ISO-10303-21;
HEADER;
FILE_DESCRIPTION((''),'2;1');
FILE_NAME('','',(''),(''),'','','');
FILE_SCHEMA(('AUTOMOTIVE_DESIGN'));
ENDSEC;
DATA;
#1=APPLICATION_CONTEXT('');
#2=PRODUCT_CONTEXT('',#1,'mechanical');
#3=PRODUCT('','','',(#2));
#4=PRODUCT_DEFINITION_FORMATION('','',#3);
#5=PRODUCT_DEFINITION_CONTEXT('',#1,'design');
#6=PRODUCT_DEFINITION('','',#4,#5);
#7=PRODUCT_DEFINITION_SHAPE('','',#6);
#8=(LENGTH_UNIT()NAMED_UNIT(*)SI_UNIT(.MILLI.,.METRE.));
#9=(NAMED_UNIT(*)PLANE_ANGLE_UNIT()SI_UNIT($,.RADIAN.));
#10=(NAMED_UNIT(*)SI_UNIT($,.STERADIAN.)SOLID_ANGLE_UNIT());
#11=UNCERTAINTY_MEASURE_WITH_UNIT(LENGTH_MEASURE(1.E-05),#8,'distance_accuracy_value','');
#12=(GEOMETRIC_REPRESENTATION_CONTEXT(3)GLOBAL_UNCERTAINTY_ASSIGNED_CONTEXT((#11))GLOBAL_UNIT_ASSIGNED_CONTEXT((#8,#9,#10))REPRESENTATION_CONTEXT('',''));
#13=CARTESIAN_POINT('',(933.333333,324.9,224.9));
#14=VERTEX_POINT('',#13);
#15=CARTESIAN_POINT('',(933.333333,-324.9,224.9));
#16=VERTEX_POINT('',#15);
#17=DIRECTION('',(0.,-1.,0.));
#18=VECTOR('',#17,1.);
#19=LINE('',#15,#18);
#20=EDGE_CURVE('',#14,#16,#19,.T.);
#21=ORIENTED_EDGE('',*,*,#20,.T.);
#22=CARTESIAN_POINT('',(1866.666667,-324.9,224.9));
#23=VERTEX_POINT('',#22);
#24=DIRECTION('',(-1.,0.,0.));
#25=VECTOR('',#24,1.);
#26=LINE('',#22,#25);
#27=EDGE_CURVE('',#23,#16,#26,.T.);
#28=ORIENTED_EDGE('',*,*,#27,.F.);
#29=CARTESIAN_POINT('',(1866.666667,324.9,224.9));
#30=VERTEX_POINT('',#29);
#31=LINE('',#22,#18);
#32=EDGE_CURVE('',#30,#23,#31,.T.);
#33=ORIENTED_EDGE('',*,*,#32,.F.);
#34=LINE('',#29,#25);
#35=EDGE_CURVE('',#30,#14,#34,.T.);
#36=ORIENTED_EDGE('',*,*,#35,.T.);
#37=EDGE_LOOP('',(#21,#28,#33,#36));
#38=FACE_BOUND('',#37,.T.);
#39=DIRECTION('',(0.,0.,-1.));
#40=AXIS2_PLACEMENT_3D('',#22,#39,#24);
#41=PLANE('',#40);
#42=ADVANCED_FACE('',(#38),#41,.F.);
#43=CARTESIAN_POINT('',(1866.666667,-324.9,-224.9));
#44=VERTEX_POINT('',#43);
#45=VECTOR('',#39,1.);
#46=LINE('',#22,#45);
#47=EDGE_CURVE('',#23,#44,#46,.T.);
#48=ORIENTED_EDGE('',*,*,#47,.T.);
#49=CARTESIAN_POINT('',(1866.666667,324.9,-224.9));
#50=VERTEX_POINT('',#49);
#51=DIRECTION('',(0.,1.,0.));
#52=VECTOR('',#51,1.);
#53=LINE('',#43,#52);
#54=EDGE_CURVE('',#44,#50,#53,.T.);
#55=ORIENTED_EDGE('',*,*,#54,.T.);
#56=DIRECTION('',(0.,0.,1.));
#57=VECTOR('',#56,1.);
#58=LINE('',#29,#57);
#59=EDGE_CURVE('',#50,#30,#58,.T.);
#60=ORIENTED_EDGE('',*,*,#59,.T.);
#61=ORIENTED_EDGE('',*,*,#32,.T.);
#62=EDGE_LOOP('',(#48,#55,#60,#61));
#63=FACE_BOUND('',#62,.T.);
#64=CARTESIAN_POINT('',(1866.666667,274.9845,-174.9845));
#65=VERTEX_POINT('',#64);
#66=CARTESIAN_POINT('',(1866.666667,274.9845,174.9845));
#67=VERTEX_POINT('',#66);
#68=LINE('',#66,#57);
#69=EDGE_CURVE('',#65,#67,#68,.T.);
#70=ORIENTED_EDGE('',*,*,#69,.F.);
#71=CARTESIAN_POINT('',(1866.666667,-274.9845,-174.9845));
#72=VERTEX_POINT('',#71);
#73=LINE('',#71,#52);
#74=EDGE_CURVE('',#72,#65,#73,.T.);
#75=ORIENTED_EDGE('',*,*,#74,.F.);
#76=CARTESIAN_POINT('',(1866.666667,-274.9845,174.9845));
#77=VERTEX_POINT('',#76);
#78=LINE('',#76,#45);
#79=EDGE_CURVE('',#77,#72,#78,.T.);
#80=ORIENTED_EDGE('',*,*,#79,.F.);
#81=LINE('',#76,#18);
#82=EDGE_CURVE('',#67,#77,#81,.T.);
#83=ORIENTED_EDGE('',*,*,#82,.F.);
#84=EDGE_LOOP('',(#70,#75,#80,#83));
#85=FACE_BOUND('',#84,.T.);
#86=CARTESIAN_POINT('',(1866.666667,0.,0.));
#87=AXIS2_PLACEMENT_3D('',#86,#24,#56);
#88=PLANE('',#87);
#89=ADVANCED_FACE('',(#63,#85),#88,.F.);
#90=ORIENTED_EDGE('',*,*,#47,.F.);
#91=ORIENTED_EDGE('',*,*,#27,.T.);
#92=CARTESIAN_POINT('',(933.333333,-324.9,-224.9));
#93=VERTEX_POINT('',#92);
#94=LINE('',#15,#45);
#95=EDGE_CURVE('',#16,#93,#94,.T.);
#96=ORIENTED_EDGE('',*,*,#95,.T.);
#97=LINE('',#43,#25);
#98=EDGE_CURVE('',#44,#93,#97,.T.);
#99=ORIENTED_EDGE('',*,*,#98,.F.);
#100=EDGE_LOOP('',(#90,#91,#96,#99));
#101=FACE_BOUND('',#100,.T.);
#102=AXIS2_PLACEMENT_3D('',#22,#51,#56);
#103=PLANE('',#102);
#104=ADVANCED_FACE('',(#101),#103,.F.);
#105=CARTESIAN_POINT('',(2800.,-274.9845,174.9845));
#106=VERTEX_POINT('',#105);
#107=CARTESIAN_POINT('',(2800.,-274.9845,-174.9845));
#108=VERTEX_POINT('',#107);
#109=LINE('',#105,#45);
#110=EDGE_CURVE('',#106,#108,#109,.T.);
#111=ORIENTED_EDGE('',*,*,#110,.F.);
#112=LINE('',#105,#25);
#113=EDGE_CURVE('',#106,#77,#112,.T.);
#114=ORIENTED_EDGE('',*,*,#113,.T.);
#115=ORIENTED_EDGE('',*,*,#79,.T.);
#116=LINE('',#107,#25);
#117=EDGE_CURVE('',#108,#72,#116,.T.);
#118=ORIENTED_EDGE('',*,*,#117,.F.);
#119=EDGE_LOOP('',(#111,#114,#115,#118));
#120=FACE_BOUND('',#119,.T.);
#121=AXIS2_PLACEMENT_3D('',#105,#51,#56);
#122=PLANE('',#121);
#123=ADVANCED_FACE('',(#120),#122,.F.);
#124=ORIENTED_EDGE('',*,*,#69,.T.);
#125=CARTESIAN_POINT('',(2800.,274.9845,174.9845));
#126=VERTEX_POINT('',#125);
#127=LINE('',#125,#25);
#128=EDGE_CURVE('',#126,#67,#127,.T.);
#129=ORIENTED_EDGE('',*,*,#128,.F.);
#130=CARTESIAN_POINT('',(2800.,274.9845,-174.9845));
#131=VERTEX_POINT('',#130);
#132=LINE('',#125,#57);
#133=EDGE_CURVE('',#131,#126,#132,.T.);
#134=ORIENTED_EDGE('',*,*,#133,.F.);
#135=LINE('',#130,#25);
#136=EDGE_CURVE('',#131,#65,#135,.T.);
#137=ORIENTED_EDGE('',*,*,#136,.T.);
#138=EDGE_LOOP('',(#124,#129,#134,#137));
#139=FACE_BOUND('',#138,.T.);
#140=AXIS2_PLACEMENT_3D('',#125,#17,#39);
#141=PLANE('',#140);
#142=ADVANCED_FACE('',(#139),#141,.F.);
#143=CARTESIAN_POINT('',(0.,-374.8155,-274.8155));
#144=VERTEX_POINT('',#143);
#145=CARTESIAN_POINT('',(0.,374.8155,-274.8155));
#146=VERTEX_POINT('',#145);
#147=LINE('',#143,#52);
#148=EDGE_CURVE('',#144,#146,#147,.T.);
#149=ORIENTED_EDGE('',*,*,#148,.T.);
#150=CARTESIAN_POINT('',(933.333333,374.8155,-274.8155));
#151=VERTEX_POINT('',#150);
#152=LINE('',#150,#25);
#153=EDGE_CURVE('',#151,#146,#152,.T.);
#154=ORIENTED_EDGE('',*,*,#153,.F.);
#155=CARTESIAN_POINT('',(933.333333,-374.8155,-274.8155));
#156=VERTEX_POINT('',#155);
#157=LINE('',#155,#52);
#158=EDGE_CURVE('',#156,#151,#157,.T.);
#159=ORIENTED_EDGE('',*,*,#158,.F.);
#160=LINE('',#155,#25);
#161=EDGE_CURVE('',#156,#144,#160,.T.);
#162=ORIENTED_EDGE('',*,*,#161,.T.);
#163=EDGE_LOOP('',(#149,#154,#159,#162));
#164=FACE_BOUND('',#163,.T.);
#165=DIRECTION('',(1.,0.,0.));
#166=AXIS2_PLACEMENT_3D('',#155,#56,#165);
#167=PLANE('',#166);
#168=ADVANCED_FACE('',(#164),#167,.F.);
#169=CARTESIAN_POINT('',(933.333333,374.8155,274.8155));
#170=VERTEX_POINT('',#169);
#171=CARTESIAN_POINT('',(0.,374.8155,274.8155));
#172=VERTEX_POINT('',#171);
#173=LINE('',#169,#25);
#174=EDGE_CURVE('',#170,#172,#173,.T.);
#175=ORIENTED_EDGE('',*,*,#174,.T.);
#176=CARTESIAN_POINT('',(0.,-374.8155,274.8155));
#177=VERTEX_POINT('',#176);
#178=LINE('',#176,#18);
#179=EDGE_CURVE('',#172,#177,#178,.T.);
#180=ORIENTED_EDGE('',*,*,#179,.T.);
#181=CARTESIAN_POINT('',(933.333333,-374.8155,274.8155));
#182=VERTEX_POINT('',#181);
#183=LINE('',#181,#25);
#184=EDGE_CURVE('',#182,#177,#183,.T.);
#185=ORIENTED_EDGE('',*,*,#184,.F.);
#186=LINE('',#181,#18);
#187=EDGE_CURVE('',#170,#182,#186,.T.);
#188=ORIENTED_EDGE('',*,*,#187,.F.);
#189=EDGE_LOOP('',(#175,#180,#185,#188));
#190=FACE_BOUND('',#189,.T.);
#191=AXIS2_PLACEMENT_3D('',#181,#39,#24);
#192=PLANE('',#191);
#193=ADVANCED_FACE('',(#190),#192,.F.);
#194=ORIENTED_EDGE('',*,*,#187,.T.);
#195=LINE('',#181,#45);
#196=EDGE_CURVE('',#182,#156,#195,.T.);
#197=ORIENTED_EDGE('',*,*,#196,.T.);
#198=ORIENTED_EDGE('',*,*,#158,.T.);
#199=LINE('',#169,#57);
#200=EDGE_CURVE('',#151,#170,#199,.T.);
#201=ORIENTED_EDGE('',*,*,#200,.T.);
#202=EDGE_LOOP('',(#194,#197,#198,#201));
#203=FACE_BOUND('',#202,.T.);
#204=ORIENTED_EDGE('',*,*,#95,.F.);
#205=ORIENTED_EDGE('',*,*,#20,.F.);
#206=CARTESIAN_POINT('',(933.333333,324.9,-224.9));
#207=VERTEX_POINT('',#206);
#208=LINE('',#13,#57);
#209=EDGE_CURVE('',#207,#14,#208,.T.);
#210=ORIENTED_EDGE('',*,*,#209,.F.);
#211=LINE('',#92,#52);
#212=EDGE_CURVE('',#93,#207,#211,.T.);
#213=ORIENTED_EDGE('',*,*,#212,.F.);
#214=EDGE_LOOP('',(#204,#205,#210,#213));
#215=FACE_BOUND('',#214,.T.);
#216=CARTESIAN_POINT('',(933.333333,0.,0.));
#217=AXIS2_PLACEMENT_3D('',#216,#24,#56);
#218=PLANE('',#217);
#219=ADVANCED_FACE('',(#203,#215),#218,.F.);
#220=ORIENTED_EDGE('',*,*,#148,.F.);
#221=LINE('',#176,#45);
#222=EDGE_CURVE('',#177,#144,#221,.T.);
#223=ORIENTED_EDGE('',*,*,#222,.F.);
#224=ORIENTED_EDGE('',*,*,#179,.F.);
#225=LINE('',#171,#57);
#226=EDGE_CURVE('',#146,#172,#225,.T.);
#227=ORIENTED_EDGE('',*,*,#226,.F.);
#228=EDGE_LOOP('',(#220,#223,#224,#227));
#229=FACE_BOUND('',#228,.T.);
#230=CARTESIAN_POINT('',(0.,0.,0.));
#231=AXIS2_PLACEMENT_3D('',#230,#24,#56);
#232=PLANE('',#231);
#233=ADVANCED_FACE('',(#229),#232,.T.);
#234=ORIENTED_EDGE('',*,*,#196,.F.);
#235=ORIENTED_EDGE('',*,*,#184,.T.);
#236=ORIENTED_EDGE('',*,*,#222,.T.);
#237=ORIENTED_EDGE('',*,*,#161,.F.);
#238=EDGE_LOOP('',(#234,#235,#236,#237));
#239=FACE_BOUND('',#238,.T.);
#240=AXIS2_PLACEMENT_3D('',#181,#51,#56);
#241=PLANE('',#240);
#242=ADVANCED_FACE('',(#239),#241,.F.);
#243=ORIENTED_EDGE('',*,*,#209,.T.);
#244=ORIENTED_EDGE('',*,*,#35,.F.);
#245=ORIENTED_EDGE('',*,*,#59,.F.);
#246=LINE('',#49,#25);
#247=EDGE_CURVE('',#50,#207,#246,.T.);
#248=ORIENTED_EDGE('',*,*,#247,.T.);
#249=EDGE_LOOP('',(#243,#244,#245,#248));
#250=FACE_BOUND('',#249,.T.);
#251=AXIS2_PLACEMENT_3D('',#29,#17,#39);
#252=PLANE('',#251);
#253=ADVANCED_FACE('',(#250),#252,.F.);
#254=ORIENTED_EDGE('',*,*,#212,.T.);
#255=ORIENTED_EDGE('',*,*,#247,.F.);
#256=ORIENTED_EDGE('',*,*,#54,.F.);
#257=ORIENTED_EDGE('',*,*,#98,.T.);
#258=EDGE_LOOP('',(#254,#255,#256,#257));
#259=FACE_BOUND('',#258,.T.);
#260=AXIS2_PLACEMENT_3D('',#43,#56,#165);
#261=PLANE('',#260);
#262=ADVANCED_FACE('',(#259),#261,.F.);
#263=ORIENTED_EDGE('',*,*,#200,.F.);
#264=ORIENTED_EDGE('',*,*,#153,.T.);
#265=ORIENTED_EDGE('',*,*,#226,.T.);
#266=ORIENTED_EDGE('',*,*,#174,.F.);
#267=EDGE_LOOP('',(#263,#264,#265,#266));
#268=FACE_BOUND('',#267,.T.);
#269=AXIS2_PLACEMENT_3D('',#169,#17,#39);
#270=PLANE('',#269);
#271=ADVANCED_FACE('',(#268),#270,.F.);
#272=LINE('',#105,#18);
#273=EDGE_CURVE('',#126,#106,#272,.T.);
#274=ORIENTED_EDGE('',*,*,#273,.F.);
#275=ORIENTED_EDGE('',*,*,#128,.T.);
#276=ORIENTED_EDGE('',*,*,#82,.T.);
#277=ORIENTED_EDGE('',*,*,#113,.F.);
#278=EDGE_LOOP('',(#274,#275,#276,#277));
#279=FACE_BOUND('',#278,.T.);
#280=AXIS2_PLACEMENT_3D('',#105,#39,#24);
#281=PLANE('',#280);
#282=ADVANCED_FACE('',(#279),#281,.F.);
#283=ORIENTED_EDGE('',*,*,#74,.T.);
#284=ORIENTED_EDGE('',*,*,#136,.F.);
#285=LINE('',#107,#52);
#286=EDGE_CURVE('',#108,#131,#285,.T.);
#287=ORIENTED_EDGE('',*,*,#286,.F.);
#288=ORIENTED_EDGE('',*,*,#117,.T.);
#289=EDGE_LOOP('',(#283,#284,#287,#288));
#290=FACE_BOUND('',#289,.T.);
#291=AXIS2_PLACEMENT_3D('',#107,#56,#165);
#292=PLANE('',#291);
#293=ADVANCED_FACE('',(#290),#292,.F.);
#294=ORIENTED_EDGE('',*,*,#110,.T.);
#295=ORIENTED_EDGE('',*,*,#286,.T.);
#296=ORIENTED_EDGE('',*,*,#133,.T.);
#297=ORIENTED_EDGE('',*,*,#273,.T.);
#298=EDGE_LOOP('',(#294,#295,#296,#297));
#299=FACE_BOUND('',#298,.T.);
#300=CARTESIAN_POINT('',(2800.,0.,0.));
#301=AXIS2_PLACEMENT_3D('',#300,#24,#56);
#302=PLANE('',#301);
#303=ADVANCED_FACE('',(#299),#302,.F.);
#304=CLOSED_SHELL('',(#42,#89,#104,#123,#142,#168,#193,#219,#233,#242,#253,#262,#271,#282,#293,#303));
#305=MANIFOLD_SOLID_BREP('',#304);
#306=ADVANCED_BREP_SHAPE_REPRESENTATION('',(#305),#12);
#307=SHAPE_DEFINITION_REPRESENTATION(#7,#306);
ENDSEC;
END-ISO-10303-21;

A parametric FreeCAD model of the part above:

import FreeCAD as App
import Part
import Sketcher
from FreeCAD import Vector


def add_polygon(sketch, points):
    """Adds a closed chain of lines whose ends are joined by coincident constraints."""
    first, n = sketch.GeometryCount, len(points)
    for a, b in zip(points, points[1:] + points[:1]):
        sketch.addGeometry(Part.LineSegment(App.Vector(*a, 0), App.Vector(*b, 0)), False)
    for i in range(n):
        sketch.addConstraint(Sketcher.Constraint("Coincident", first + i, 2, first + (i + 1) % n, 1))

doc = App.newDocument("Part")
params = doc.addObject("Spreadsheet::Sheet", "Params")
for row, (alias, value) in enumerate([
    ("pad1_length", "933.333333 mm"),
    ("sketch2_width", "649.8 mm"),
    ("sketch2_height", "449.8 mm"),
    ("pad2_length", "933.333333 mm"),
    ("pad3_length", "933.333333 mm"),
], start=1):
    params.set(f"A{row}", alias)
    params.set(f"B{row}", "=" + value)
    params.setAlias(f"B{row}", alias)

body = doc.addObject("PartDesign::Body", "Body")

sketch1 = doc.addObject("Sketcher::SketchObject", "Sketch")
body.addObject(sketch1)
sketch1.AttachmentSupport = (doc.YZ_Plane, [""])
sketch1.MapMode = "FlatFace"
add_polygon(sketch1, [(374.8155, 274.8155), (-374.8155, 274.8155), (-374.8155, -274.8155), (374.8155, -274.8155)])
sketch1.addConstraint([
    Sketcher.Constraint("Horizontal", 0),
    Sketcher.Constraint("Vertical", 1),
    Sketcher.Constraint("Horizontal", 2),
    Sketcher.Constraint("Vertical", 3),
    Sketcher.Constraint("Symmetric", 0, 2, 2, 2, -1, 1),
    Sketcher.Constraint("DistanceX", 0, 2, 0, 1, 749.631),
    Sketcher.Constraint("DistanceY", 1, 2, 1, 1, 549.631),
])
pad1 = doc.addObject("PartDesign::Pad", "Pad")
body.addObject(pad1)
pad1.Profile = sketch1
pad1.setExpression("Length", "Params.pad1_length")

sketch2 = doc.addObject("Sketcher::SketchObject", "Sketch001")
body.addObject(sketch2)
sketch2.AttachmentSupport = (doc.YZ_Plane, [""])
sketch2.MapMode = "FlatFace"
sketch2.AttachmentOffset = App.Placement(Vector(0, 0, 933.333333), App.Rotation())
add_polygon(sketch2, [(324.9, 224.9), (-324.9, 224.9), (-324.9, -224.9), (324.9, -224.9)])
sketch2.addConstraint([
    Sketcher.Constraint("Horizontal", 0),
    Sketcher.Constraint("Vertical", 1),
    Sketcher.Constraint("Horizontal", 2),
    Sketcher.Constraint("Vertical", 3),
    Sketcher.Constraint("Symmetric", 0, 2, 2, 2, -1, 1),
    Sketcher.Constraint("DistanceX", 0, 2, 0, 1, 649.8),
    Sketcher.Constraint("DistanceY", 1, 2, 1, 1, 449.8),
])
sketch2.setExpression("Constraints[9]", "Params.sketch2_width")
sketch2.setExpression("Constraints[10]", "Params.sketch2_height")
pad2 = doc.addObject("PartDesign::Pad", "Pad001")
body.addObject(pad2)
pad2.Profile = sketch2
pad2.setExpression("Length", "Params.pad2_length")

sketch3 = doc.addObject("Sketcher::SketchObject", "Sketch002")
body.addObject(sketch3)
sketch3.AttachmentSupport = (doc.YZ_Plane, [""])
sketch3.MapMode = "FlatFace"
sketch3.AttachmentOffset = App.Placement(Vector(0, 0, 1866.666667), App.Rotation())
add_polygon(sketch3, [(274.9845, 174.9845), (-274.9845, 174.9845), (-274.9845, -174.9845), (274.9845, -174.9845)])
sketch3.addConstraint([
    Sketcher.Constraint("Horizontal", 0),
    Sketcher.Constraint("Vertical", 1),
    Sketcher.Constraint("Horizontal", 2),
    Sketcher.Constraint("Vertical", 3),
    Sketcher.Constraint("Symmetric", 0, 2, 2, 2, -1, 1),
    Sketcher.Constraint("DistanceX", 0, 2, 0, 1, 549.969),
    Sketcher.Constraint("DistanceY", 1, 2, 1, 1, 349.969),
])
pad3 = doc.addObject("PartDesign::Pad", "Pad002")
body.addObject(pad3)
pad3.Profile = sketch3
pad3.setExpression("Length", "Params.pad3_length")

doc.recompute()
